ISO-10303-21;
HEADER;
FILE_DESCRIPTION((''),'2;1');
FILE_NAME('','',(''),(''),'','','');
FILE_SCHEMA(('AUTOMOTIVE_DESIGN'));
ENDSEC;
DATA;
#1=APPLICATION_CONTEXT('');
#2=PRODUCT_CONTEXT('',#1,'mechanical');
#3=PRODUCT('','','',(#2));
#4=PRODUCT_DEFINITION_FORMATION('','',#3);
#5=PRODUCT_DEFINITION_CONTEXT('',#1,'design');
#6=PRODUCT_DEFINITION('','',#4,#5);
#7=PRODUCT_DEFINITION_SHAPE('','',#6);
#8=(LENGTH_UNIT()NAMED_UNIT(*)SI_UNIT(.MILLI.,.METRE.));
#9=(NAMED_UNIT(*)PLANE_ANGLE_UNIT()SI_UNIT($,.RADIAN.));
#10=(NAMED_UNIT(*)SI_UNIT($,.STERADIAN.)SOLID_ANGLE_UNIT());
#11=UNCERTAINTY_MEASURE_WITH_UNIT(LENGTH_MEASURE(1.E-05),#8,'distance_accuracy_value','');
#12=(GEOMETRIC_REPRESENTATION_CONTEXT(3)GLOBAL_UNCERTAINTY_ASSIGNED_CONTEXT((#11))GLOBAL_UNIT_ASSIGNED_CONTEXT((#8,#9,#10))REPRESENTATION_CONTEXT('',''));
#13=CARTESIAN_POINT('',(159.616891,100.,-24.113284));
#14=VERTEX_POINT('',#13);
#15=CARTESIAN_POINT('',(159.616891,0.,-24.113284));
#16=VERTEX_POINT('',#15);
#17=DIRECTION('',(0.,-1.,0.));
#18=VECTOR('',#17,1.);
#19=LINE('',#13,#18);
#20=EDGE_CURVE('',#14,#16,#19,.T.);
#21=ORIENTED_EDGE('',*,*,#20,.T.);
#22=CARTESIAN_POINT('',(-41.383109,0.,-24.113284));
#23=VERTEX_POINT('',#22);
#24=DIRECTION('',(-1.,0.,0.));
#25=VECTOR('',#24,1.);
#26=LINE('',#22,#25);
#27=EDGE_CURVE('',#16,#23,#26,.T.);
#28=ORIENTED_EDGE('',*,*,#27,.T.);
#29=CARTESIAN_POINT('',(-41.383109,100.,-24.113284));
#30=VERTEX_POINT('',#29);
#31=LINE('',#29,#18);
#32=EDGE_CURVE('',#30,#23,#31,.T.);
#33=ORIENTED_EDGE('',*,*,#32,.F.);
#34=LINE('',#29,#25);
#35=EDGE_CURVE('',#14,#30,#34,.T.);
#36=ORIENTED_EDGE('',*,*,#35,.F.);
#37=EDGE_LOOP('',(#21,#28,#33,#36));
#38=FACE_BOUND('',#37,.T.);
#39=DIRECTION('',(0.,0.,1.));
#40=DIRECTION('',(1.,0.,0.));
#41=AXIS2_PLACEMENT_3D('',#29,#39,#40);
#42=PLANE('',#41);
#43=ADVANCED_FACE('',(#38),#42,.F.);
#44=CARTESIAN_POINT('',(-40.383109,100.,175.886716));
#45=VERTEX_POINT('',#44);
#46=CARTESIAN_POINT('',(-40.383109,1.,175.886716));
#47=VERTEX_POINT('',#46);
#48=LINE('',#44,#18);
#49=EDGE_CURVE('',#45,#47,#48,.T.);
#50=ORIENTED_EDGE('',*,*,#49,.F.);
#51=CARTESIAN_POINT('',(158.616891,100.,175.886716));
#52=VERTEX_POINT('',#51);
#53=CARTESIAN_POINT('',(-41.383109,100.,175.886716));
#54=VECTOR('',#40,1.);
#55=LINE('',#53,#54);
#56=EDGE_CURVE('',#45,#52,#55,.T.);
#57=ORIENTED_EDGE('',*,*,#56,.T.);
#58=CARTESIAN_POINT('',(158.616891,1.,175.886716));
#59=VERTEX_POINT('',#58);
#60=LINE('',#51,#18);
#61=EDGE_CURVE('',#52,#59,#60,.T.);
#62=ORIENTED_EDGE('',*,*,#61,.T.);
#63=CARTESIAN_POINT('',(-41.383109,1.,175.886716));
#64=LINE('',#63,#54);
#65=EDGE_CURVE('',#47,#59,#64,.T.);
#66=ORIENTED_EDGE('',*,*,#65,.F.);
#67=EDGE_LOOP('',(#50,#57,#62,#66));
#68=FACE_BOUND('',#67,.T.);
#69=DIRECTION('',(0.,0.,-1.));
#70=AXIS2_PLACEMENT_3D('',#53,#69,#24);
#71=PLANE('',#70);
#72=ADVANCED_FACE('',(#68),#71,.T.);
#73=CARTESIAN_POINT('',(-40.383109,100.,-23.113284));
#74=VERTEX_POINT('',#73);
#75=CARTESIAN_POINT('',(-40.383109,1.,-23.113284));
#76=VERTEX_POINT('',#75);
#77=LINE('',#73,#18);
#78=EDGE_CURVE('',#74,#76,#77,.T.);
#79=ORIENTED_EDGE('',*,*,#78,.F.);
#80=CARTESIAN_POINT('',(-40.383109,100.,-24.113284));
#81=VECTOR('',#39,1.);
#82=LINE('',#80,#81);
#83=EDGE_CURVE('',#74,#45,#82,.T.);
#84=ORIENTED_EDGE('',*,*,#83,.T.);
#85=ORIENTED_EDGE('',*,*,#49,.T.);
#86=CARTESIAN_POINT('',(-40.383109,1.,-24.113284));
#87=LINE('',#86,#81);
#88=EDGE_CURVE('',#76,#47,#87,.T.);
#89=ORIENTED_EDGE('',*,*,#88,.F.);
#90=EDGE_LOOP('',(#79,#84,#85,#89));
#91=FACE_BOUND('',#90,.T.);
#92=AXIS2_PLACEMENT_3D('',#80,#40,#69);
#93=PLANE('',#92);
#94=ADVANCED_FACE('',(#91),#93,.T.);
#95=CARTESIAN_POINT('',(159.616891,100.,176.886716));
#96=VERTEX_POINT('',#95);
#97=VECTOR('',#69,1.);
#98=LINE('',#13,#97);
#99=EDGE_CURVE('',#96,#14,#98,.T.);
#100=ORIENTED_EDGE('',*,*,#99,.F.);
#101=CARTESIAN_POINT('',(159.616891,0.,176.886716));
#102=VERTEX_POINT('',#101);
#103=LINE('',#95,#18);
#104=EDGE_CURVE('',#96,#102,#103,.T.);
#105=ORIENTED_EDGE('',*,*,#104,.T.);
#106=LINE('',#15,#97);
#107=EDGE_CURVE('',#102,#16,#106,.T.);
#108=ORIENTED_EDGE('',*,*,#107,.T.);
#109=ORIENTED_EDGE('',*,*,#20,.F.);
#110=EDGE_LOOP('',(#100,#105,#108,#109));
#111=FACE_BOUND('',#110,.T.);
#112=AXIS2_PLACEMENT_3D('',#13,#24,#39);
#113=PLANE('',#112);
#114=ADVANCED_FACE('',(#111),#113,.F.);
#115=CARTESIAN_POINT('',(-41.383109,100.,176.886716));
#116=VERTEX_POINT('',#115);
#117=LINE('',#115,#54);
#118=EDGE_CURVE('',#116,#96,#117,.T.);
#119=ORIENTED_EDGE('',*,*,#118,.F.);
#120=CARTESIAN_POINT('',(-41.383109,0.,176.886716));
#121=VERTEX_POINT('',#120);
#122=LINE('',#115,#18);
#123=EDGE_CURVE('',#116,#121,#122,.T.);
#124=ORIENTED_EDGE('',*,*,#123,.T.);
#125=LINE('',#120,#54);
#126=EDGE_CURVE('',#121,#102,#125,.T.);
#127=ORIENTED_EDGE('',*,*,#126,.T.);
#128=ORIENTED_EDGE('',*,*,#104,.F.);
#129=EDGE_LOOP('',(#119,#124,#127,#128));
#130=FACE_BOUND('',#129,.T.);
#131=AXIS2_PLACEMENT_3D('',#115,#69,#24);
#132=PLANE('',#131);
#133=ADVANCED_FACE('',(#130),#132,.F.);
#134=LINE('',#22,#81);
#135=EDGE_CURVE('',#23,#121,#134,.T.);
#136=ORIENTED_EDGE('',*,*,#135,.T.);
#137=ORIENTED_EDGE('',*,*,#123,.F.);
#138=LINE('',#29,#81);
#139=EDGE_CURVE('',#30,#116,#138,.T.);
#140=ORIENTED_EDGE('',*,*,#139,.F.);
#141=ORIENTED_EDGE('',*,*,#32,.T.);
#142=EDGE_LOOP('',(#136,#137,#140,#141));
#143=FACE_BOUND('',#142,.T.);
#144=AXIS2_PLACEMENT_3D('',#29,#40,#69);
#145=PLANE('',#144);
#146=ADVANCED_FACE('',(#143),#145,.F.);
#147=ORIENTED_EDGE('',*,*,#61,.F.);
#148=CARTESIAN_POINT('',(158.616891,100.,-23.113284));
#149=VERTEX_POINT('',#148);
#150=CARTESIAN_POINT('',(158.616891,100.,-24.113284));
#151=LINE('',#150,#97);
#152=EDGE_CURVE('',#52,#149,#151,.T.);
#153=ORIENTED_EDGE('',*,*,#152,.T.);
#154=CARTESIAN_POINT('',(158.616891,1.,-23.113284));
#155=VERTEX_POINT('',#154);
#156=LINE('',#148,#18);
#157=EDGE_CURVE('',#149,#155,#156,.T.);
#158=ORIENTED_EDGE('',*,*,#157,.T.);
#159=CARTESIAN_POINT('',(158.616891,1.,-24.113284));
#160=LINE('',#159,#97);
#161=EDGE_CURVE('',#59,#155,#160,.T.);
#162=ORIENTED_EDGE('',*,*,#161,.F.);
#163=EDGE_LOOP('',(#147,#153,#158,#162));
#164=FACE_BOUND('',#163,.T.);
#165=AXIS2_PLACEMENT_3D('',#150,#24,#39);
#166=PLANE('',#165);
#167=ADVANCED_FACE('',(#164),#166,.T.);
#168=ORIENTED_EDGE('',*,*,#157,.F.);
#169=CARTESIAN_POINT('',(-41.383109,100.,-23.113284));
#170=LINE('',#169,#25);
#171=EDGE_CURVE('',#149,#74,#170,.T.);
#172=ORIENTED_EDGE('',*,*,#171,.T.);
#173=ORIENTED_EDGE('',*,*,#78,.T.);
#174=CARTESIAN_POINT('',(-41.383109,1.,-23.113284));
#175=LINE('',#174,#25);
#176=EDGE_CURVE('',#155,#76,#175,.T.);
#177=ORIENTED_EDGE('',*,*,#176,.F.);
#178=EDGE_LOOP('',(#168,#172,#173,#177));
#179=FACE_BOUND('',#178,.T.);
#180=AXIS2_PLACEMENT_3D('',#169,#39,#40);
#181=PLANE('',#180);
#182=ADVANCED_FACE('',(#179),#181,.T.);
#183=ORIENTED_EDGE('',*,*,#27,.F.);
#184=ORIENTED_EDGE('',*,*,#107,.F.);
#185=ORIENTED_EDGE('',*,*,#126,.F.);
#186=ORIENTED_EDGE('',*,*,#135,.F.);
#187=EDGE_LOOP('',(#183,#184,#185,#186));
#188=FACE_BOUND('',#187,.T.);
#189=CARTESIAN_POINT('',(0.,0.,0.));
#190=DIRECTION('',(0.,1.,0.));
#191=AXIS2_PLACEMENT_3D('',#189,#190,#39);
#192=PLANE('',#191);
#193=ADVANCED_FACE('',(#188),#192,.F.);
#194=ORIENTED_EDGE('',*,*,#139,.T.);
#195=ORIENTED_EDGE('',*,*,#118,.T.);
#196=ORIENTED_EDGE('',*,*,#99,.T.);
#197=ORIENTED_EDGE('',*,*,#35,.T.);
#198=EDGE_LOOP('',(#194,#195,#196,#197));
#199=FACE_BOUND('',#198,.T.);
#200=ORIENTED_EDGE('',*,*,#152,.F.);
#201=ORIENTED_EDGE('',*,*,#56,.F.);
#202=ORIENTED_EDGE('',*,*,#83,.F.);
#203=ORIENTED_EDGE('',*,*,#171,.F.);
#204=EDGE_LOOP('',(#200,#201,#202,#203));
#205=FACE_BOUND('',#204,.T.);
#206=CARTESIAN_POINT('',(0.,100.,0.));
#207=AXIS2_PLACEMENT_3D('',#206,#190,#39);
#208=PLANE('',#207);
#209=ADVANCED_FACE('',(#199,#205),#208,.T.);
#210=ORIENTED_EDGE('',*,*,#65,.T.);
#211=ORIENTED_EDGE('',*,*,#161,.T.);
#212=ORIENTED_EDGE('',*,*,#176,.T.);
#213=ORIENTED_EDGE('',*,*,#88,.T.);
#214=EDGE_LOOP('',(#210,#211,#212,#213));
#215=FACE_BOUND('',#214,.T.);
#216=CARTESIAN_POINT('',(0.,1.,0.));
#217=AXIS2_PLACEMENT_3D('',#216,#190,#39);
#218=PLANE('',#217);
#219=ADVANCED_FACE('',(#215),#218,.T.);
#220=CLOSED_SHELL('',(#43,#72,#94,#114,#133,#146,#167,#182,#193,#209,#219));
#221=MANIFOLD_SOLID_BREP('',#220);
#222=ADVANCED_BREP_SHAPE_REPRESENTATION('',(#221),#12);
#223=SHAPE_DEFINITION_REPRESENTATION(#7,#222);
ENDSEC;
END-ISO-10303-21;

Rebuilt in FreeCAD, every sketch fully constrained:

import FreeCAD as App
import Part
import Sketcher
from FreeCAD import Vector
Q = App.Units.Quantity


def faces_at(feature, points):
    """Names of the faces that lie closest to the given points."""
    faces = feature.Shape.Faces
    near = lambda p: min(range(len(faces)), key=lambda i: faces[i].distToShape(Part.Vertex(*p))[0])
    return sorted({f"Face{near(p) + 1}" for p in points})


def add_polygon(sketch, points):
    """Adds a closed chain of lines whose ends are joined by coincident constraints."""
    first, n = sketch.GeometryCount, len(points)
    for a, b in zip(points, points[1:] + points[:1]):
        sketch.addGeometry(Part.LineSegment(App.Vector(*a, 0), App.Vector(*b, 0)), False)
    for i in range(n):
        sketch.addConstraint(Sketcher.Constraint("Coincident", first + i, 2, first + (i + 1) % n, 1))

doc = App.newDocument("Part")
body = doc.addObject("PartDesign::Body", "Body")

# Sketch on XZ plane
sketch1 = body.newObject("Sketcher::SketchObject", "Sketch")
sketch1.AttachmentSupport = (doc.getObject("XZ_Plane"), [""])
sketch1.MapMode = "FlatFace"
add_polygon(sketch1, [(-41, -24), (-41, 177), (160, 177), (160, -24)])  # lines 0-3
sketch1.addConstraint(Sketcher.Constraint("Vertical", 0))
sketch1.addConstraint(Sketcher.Constraint("Horizontal", 1))
sketch1.addConstraint(Sketcher.Constraint("Vertical", 2))
sketch1.addConstraint(Sketcher.Constraint("Horizontal", 3))
sketch1.addConstraint(Sketcher.Constraint("Equal", 3, 0))
sketch1.addConstraint(Sketcher.Constraint("DistanceX", 1, 1, 1, 2, Q("201 mm")))
sketch1.addConstraint(Sketcher.Constraint("DistanceX", 0, 2, -1, 1, Q("41.383109 mm")))
sketch1.addConstraint(Sketcher.Constraint("DistanceY", -1, 1, 0, 2, Q("176.886716 mm")))
pad1 = body.newObject("PartDesign::Pad", "Pad")
pad1.Profile = sketch1
pad1.Length = 100
pad1.Reversed = True
doc.recompute()

thickness = body.newObject("PartDesign::Thickness", "Thickness")
thickness.Base = (pad1, faces_at(pad1, [(59.117, 100, 76.387)]))
thickness.Value = 1
thickness.Reversed = True
thickness.Join = "Intersection"

doc.recompute()
